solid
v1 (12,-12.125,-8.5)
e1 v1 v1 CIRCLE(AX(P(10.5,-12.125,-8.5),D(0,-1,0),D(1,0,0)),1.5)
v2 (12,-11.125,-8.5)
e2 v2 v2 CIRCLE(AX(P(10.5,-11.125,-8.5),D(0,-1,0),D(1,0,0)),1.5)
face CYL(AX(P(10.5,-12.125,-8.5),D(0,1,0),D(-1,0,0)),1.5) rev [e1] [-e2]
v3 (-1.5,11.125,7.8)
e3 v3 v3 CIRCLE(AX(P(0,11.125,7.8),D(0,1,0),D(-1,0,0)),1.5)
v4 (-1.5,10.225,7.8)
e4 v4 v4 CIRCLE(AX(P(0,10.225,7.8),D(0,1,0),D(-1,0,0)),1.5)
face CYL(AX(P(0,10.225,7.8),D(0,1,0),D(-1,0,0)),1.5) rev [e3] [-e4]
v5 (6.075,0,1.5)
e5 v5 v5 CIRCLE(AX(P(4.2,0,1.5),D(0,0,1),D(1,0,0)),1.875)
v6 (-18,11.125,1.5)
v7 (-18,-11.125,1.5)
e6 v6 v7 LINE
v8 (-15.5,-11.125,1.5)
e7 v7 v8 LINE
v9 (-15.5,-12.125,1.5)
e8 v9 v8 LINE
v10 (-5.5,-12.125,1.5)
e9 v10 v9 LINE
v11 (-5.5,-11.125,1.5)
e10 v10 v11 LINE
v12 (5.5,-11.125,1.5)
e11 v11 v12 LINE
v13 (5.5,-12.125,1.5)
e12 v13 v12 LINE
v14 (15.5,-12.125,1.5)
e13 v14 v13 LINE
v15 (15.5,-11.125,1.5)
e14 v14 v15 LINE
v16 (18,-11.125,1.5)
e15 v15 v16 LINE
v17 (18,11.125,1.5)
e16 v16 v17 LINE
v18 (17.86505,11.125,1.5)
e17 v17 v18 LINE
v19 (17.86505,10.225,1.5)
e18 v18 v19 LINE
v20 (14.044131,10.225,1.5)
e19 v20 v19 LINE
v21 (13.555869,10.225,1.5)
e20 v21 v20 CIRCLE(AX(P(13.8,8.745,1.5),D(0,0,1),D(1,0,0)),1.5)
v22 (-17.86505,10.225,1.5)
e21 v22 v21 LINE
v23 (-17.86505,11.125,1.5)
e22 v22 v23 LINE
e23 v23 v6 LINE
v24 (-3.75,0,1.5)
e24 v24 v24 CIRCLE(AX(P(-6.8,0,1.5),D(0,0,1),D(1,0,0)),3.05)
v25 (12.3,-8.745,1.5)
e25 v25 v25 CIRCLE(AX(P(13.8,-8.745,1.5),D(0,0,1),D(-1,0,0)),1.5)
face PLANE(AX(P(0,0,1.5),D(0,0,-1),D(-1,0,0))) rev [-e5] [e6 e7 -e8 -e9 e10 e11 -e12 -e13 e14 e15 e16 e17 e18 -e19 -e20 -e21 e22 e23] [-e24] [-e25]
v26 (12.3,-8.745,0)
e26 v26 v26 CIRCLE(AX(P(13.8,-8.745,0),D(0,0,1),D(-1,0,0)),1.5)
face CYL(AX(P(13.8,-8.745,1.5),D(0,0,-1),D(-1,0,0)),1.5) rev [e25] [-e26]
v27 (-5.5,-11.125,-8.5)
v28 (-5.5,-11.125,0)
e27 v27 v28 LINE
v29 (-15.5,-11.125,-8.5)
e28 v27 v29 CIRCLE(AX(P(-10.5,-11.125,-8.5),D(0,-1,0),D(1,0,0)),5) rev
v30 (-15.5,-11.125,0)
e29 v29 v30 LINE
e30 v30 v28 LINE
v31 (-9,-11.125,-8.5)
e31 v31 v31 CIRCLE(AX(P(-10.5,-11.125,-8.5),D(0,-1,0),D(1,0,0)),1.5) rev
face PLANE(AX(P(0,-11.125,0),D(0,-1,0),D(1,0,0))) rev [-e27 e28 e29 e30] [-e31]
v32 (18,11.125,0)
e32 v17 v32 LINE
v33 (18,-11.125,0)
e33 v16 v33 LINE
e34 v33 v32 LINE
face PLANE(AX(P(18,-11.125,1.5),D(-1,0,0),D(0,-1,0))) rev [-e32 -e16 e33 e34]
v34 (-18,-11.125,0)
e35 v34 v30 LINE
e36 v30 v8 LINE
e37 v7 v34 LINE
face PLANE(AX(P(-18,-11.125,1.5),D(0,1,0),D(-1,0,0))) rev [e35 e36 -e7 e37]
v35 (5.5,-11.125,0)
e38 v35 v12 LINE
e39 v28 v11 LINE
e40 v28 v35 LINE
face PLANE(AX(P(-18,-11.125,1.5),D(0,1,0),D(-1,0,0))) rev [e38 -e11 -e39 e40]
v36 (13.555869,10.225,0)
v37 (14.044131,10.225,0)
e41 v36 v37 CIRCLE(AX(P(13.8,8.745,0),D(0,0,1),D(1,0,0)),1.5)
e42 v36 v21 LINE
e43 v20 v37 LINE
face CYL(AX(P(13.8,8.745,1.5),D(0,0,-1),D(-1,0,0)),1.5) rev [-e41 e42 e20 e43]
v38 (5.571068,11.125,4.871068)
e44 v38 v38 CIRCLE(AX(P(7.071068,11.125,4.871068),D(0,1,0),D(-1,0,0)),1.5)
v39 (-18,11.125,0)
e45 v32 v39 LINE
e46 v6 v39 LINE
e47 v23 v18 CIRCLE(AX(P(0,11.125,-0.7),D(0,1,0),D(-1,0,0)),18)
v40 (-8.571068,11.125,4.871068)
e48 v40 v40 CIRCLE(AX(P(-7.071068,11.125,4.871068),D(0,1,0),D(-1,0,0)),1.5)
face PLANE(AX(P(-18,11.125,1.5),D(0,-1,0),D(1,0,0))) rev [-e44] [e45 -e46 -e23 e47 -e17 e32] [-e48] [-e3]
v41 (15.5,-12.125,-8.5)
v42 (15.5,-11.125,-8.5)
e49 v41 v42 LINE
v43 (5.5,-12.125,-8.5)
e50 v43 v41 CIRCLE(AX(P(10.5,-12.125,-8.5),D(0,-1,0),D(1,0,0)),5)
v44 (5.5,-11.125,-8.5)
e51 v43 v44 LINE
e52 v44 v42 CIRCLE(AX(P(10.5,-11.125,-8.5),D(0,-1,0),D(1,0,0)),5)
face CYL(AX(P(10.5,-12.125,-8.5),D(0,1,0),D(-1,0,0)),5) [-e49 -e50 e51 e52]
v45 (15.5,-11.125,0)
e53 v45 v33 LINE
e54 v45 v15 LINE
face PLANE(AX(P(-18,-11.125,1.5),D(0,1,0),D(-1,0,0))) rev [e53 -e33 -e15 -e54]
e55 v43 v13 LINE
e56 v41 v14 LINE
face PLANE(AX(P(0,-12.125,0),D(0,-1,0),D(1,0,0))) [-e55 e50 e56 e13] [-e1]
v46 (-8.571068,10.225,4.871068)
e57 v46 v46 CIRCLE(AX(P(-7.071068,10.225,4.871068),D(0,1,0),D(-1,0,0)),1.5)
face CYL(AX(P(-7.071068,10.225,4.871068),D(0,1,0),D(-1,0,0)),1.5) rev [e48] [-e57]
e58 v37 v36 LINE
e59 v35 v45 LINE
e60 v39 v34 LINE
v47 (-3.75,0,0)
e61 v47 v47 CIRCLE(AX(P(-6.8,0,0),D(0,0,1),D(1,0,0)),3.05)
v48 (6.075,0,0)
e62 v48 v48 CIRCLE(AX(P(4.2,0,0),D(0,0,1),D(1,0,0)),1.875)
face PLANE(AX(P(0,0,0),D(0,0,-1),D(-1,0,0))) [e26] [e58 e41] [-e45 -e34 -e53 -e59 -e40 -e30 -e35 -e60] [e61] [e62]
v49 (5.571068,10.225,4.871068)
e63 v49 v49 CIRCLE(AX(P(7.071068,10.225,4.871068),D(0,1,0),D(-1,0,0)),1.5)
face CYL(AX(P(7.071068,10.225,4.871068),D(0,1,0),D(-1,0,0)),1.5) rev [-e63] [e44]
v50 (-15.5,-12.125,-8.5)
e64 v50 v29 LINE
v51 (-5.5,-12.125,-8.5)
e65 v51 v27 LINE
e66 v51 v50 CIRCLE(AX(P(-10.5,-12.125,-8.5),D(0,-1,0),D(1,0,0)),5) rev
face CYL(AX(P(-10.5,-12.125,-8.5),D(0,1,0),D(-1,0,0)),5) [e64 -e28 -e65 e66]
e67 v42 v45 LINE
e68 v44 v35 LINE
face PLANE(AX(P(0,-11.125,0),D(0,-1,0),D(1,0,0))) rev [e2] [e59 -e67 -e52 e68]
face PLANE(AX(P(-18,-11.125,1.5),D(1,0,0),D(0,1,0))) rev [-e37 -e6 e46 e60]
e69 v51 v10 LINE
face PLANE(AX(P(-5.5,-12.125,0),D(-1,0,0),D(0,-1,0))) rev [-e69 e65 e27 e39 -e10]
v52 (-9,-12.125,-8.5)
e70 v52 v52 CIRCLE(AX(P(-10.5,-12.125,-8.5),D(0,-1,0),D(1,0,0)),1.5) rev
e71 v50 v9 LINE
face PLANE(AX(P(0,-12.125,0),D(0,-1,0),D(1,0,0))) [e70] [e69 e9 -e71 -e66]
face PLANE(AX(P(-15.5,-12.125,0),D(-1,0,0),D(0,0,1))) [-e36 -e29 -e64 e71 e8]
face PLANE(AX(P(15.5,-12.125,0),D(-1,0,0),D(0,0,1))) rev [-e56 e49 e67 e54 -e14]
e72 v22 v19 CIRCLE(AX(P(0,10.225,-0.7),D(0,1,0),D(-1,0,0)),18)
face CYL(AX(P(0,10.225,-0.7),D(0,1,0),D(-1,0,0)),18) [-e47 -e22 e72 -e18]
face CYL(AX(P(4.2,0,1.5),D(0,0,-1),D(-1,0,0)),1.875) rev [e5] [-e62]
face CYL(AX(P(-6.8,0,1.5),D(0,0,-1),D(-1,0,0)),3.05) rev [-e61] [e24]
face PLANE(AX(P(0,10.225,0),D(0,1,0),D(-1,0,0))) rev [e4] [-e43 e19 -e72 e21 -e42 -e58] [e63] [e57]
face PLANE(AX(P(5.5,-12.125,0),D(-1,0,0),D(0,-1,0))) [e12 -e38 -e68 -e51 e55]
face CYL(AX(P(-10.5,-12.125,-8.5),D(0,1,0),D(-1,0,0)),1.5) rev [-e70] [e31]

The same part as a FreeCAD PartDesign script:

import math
import FreeCAD as App
import Part
import Sketcher
from FreeCAD import Vector
Q = App.Units.Quantity


def add_polygon(sketch, points):
    """Adds a closed chain of lines whose ends are joined by coincident constraints."""
    first, n = sketch.GeometryCount, len(points)
    for a, b in zip(points, points[1:] + points[:1]):
        sketch.addGeometry(Part.LineSegment(App.Vector(*a, 0), App.Vector(*b, 0)), False)
    for i in range(n):
        sketch.addConstraint(Sketcher.Constraint("Coincident", first + i, 2, first + (i + 1) % n, 1))

doc = App.newDocument("Part")
body = doc.addObject("PartDesign::Body", "Body")

# Sketch on XY plane
sketch1 = doc.addObject("Sketcher::SketchObject", "Sketch")
body.addObject(sketch1)
sketch1.AttachmentSupport = (doc.XY_Plane, [""])
sketch1.MapMode = "FlatFace"
add_polygon(sketch1, [(-18, 11.1), (-18, -11.1), (18, -11.1), (18, 11.1)])  # lines 0-3
sketch1.addGeometry(Part.Circle(Vector(13.8, -8.7, 0), Vector(0, 0, 1), 1.5), False)  # 4
sketch1.addGeometry(Part.Circle(Vector(-6.8, 0, 0), Vector(0, 0, 1), 3), False)  # 5
sketch1.addGeometry(Part.Circle(Vector(4.2, 0, 0), Vector(0, 0, 1), 1.9), False)  # 6
sketch1.addGeometry(Part.Circle(Vector(13.8, 8.7, 0), Vector(0, 0, 1), 1.5), False)  # 7
sketch1.addConstraint([
    Sketcher.Constraint("Vertical", 0),
    Sketcher.Constraint("Horizontal", 1),
    Sketcher.Constraint("Vertical", 2),
    Sketcher.Constraint("Horizontal", 3),
    Sketcher.Constraint("Equal", 4, 7),
    Sketcher.Constraint("Symmetric", 0, 2, 2, 2, -1, 1),
    Sketcher.Constraint("Symmetric", 4, 3, 7, 3, -1),
    Sketcher.Constraint("PointOnObject", 5, 3, -1),
    Sketcher.Constraint("PointOnObject", 6, 3, -1),
    Sketcher.Constraint("Diameter", 4, Q("3 mm")),
    Sketcher.Constraint("Diameter", 5, Q("6.1 mm")),
    Sketcher.Constraint("Diameter", 6, Q("3.75 mm")),
    Sketcher.Constraint("DistanceX", 1, 1, 1, 2, Q("36 mm")),
    Sketcher.Constraint("DistanceX", 5, 3, 6, 3, Q("11 mm")),
    Sketcher.Constraint("DistanceY", 0, 2, 0, 1, Q("22.25 mm")),
    Sketcher.Constraint("DistanceX", -1, 1, 4, 3, Q("13.8 mm")),
    Sketcher.Constraint("DistanceX", 5, 3, -1, 1, Q("6.8 mm")),
    Sketcher.Constraint("DistanceY", 4, 3, 7, 3, Q("17.49 mm")),
])
pad1 = doc.addObject("PartDesign::Pad", "Pad")
body.addObject(pad1)
pad1.Profile = sketch1
pad1.Length = 1.5

# Sketch on XZ plane
sketch2 = doc.addObject("Sketcher::SketchObject", "Sketch001")
body.addObject(sketch2)
sketch2.AttachmentSupport = (doc.XZ_Plane, [""])
sketch2.MapMode = "FlatFace"
sketch2.AttachmentOffset = App.Placement(Vector(0, 0, 11.125), App.Rotation())
sketch2.addGeometry([
    Part.LineSegment(Vector(-5.5, -8.5, 0), Vector(-5.5, 1.5, 0)),  # 0
    Part.LineSegment(Vector(-5.5, 1.5, 0), Vector(-15.5, 1.5, 0)),  # 1
    Part.LineSegment(Vector(-15.5, 1.5, 0), Vector(-15.5, -8.5, 0)),  # 2
    Part.ArcOfCircle(Part.Circle(Vector(-10.5, -8.5, 0), Vector(0, 0, 1), 5), math.radians(180), math.radians(360)),  # 3
    Part.Circle(Vector(-10.5, -8.5, 0), Vector(0, 0, 1), 1.5),  # 4
    Part.LineSegment(Vector(15.5, -8.5, 0), Vector(15.5, 1.5, 0)),  # 5
    Part.LineSegment(Vector(15.5, 1.5, 0), Vector(5.5, 1.5, 0)),  # 6
    Part.LineSegment(Vector(5.5, 1.5, 0), Vector(5.5, -8.5, 0)),  # 7
    Part.ArcOfCircle(Part.Circle(Vector(10.5, -8.5, 0), Vector(0, 0, 1), 5), math.radians(180), math.radians(360)),  # 8
    Part.Circle(Vector(10.5, -8.5, 0), Vector(0, 0, 1), 1.5),  # 9
], False)
sketch2.addConstraint([
    Sketcher.Constraint("Coincident", 0, 2, 1, 1),
    Sketcher.Constraint("Coincident", 1, 2, 2, 1),
    Sketcher.Constraint("Tangent", 2, 2, 3, 1),
    Sketcher.Constraint("Tangent", 3, 2, 0, 1),
    Sketcher.Constraint("Coincident", 5, 2, 6, 1),
    Sketcher.Constraint("Coincident", 6, 2, 7, 1),
    Sketcher.Constraint("Tangent", 7, 2, 8, 1),
    Sketcher.Constraint("Tangent", 8, 2, 5, 1),
    Sketcher.Constraint("Vertical", 0),
    Sketcher.Constraint("Horizontal", 1),
    Sketcher.Constraint("Vertical", 2),
    Sketcher.Constraint("Vertical", 5),
    Sketcher.Constraint("Horizontal", 6),
    Sketcher.Constraint("Vertical", 7),
    Sketcher.Constraint("Coincident", 4, 3, 3, 3),
    Sketcher.Constraint("Coincident", 9, 3, 8, 3),
    Sketcher.Constraint("Equal", 3, 8),
    Sketcher.Constraint("Equal", 4, 9),
    Sketcher.Constraint("Symmetric", 3, 3, 8, 3, -2),
    Sketcher.Constraint("Horizontal", 1, 2, 5, 2),
    Sketcher.Constraint("Equal", 6, 0),
    Sketcher.Constraint("Diameter", 4, Q("3 mm")),
    Sketcher.Constraint("Radius", 3, Q("5 mm")),
    Sketcher.Constraint("DistanceX", 3, 3, 8, 3, Q("21 mm")),
    Sketcher.Constraint("DistanceY", 3, 3, -1, 1, Q("8.5 mm")),
])
pad2 = doc.addObject("PartDesign::Pad", "Pad001")
body.addObject(pad2)
pad2.Profile = sketch2
pad2.Length = 1

# Sketch on XZ plane
sketch3 = doc.addObject("Sketcher::SketchObject", "Sketch002")
body.addObject(sketch3)
sketch3.AttachmentSupport = (doc.XZ_Plane, [""])
sketch3.MapMode = "FlatFace"
sketch3.AttachmentOffset = App.Placement(Vector(0, 0, -11.125), App.Rotation())
sketch3.addGeometry([
    Part.ArcOfCircle(Part.Circle(Vector(0, -0.7, 0), Vector(0, 0, 1), 18), math.radians(7), math.radians(173)),  # 0
    Part.ArcOfCircle(Part.Circle(Vector(0, -0.7, 0), Vector(0, 0, 1), 18), math.radians(2.23), math.radians(7.02)),  # 1
    Part.LineSegment(Vector(18, 0, 0), Vector(-18, 0, 0)),  # 2
    Part.ArcOfCircle(Part.Circle(Vector(0, -0.7, 0), Vector(0, 0, 1), 18), math.radians(172.98), math.radians(177.77)),  # 3
    Part.Circle(Vector(0, 7.8, 0), Vector(0, 0, 1), 1.5),  # 4
    Part.Circle(Vector(-7.1, 4.9, 0), Vector(0, 0, 1), 1.5),  # 5
    Part.Circle(Vector(7.1, 4.9, 0), Vector(0, 0, 1), 1.5),  # 6
], False)
sketch3.addConstraint([
    Sketcher.Constraint("Tangent", 0, 1, 1, 2),
    Sketcher.Constraint("Coincident", 1, 1, 2, 1),
    Sketcher.Constraint("Coincident", 2, 2, 3, 2),
    Sketcher.Constraint("Tangent", 3, 1, 0, 2),
    Sketcher.Constraint("Horizontal", 2),
    Sketcher.Constraint("Equal", 0, 1),
    Sketcher.Constraint("Equal", 1, 3),
    Sketcher.Constraint("Equal", 4, 5),
    Sketcher.Constraint("Equal", 5, 6),
    Sketcher.Constraint("Symmetric", 1, 1, 2, 2, -1, 1),
    Sketcher.Constraint("Symmetric", 5, 3, 6, 3, -2),
    Sketcher.Constraint("PointOnObject", 4, 3, -2),
    Sketcher.Constraint("Horizontal", 0, 1, 3, 1),
    Sketcher.Constraint("Diameter", 4, Q("3 mm")),
    Sketcher.Constraint("Radius", 0, Q("18 mm")),
    Sketcher.Constraint("DistanceY", 0, 3, -1, 1, Q("0.7 mm")),
    Sketcher.Constraint("DistanceY", -1, 1, 4, 3, Q("7.8 mm")),
    Sketcher.Constraint("DistanceY", -1, 1, 0, 1, Q("1.5 mm")),
    Sketcher.Constraint("DistanceX", 5, 3, 3, 3, Q("7.071068 mm")),
    Sketcher.Constraint("DistanceY", -1, 1, 5, 3, Q("4.871068 mm")),
])
pad3 = doc.addObject("PartDesign::Pad", "Pad002")
body.addObject(pad3)
pad3.Profile = sketch3
pad3.Length = 0.9

doc.recompute()
